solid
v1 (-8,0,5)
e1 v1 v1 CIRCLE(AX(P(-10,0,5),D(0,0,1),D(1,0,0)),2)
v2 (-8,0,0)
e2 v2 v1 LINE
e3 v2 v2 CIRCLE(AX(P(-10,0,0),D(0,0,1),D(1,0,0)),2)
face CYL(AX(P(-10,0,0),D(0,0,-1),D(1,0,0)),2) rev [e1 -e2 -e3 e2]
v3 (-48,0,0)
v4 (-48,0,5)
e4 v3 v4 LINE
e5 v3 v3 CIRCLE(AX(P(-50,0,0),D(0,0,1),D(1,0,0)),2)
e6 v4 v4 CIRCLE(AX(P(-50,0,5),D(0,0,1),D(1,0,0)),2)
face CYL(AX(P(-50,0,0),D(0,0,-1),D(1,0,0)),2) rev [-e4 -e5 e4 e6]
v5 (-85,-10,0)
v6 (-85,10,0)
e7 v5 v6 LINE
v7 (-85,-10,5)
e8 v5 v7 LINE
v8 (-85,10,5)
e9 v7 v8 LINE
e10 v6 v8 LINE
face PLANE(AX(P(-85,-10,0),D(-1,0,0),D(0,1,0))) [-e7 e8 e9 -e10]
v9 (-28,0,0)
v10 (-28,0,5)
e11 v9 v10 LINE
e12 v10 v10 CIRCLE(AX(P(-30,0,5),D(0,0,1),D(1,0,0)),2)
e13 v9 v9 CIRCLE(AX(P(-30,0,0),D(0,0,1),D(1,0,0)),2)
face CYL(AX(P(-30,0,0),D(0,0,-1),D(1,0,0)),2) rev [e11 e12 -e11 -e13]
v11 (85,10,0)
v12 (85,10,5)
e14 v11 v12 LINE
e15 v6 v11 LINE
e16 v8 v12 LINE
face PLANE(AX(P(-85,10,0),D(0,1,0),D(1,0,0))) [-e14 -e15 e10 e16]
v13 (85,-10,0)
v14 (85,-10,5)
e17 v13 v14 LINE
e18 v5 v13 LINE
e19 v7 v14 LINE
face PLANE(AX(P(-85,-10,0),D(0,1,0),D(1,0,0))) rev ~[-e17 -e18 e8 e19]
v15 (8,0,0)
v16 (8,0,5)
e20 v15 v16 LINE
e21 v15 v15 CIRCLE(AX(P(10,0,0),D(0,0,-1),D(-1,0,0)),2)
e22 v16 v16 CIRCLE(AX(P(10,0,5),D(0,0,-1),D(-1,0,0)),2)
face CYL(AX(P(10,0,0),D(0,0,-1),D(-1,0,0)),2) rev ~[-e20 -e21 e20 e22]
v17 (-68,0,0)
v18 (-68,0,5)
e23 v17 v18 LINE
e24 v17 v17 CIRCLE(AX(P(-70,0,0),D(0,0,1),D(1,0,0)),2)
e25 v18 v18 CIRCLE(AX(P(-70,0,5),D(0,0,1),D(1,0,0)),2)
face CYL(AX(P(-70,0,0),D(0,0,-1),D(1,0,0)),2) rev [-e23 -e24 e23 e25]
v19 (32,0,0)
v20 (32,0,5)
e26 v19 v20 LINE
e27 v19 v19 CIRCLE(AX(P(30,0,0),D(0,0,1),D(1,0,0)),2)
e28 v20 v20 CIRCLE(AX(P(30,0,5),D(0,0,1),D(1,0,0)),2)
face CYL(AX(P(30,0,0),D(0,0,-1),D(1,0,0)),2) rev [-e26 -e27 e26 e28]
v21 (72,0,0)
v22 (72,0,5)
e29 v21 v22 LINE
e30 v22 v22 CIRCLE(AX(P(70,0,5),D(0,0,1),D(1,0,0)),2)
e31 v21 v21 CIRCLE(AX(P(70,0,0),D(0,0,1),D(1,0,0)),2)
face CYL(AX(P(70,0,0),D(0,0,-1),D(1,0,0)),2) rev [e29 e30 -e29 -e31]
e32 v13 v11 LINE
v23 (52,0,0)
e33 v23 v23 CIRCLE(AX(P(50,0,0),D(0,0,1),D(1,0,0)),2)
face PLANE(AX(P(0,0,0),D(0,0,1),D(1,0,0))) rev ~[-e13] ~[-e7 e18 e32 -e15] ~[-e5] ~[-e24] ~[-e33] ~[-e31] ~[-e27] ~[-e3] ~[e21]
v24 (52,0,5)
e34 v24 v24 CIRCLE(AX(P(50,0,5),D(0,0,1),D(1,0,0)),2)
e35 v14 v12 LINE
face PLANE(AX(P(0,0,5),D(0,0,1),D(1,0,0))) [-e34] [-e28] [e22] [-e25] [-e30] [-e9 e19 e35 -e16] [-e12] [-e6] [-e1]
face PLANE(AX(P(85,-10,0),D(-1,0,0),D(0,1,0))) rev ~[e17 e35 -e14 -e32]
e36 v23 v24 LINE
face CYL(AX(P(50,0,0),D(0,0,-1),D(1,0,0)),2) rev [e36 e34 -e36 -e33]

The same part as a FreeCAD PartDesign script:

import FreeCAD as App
import Part
import Sketcher
from FreeCAD import Vector

doc = App.newDocument("Part")
body = doc.addObject("PartDesign::Body", "Body")

sketch1 = doc.addObject("Sketcher::SketchObject", "Sketch")
body.addObject(sketch1)
sketch1.AttachmentSupport = (doc.XY_Plane, [""])
sketch1.MapMode = "FlatFace"
sketch1.addGeometry([
    Part.LineSegment(Vector(-85, 10, 0), Vector(-85, -10, 0)),
    Part.LineSegment(Vector(-85, -10, 0), Vector(85, -10, 0)),
    Part.LineSegment(Vector(85, -10, 0), Vector(85, 10, 0)),
    Part.LineSegment(Vector(85, 10, 0), Vector(-85, 10, 0)),
    Part.Circle(Vector(-70, 0, 0), Vector(0, 0, 1), 2),
    Part.Circle(Vector(-50, 0, 0), Vector(0, 0, 1), 2),
    Part.Circle(Vector(-30, 0, 0), Vector(0, 0, 1), 2),
    Part.Circle(Vector(-10, 0, 0), Vector(0, 0, 1), 2),
    Part.Circle(Vector(10, 0, 0), Vector(0, 0, 1), 2),
    Part.Circle(Vector(30, 0, 0), Vector(0, 0, 1), 2),
    Part.Circle(Vector(50, 0, 0), Vector(0, 0, 1), 2),
    Part.Circle(Vector(70, 0, 0), Vector(0, 0, 1), 2),
], False)
sketch1.addConstraint([
    Sketcher.Constraint("Coincident", 0, 2, 1, 1),
    Sketcher.Constraint("Coincident", 1, 2, 2, 1),
    Sketcher.Constraint("Coincident", 2, 2, 3, 1),
    Sketcher.Constraint("Coincident", 3, 2, 0, 1),
    Sketcher.Constraint("Vertical", 0),
    Sketcher.Constraint("Horizontal", 1),
    Sketcher.Constraint("Vertical", 2),
    Sketcher.Constraint("Horizontal", 3),
    Sketcher.Constraint("Equal", 4, 5),
    Sketcher.Constraint("Equal", 5, 6),
    Sketcher.Constraint("Equal", 6, 7),
    Sketcher.Constraint("Equal", 7, 8),
    Sketcher.Constraint("Equal", 8, 9),
    Sketcher.Constraint("Equal", 9, 10),
    Sketcher.Constraint("Equal", 10, 11),
    Sketcher.Constraint("Symmetric", 7, 3, 8, 3, -1, 1),
    Sketcher.Constraint("Symmetric", 6, 3, 9, 3, -1, 1),
    Sketcher.Constraint("Symmetric", 5, 3, 10, 3, -1, 1),
    Sketcher.Constraint("Symmetric", 4, 3, 11, 3, -1, 1),
    Sketcher.Constraint("Symmetric", 0, 2, 2, 2, -1, 1),
    Sketcher.Constraint("PointOnObject", 4, 3, -1),
    Sketcher.Constraint("PointOnObject", 5, 3, -1),
    Sketcher.Constraint("PointOnObject", 6, 3, -1),
    Sketcher.Constraint("PointOnObject", 7, 3, -1),
    Sketcher.Constraint("Diameter", 4, 4.0),
    Sketcher.Constraint("DistanceX", 1, 1, 1, 2, 170.0),
    Sketcher.Constraint("DistanceY", 0, 2, 0, 1, 20.0),
    Sketcher.Constraint("DistanceX", 4, 3, -1, 1, 70.0),
    Sketcher.Constraint("DistanceX", 5, 3, -1, 1, 50.0),
    Sketcher.Constraint("DistanceX", 6, 3, -1, 1, 30.0),
    Sketcher.Constraint("DistanceX", 7, 3, -1, 1, 10.0),
])
pad1 = doc.addObject("PartDesign::Pad", "Pad")
body.addObject(pad1)
pad1.Profile = sketch1
pad1.Length = 5

doc.recompute()
